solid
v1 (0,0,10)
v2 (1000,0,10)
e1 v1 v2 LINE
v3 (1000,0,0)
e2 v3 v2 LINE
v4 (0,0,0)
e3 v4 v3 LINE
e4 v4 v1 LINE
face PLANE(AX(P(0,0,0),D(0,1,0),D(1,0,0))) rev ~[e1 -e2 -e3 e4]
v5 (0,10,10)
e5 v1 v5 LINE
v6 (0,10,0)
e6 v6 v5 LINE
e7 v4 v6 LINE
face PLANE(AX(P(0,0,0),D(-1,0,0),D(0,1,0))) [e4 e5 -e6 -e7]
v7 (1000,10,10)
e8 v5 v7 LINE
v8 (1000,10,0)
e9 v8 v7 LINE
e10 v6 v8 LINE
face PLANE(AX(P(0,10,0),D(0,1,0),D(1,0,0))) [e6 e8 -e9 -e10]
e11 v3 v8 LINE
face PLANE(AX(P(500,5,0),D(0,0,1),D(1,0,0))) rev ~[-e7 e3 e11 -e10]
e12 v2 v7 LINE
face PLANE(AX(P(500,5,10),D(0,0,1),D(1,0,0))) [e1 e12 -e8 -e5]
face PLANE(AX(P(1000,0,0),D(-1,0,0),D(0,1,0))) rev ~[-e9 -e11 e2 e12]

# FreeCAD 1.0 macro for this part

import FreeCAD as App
import Part
import Sketcher

V = App.Vector


def add_polygon(sketch, points):
    """Adds a closed chain of lines whose ends are joined by coincident constraints."""
    first, n = sketch.GeometryCount, len(points)
    for a, b in zip(points, points[1:] + points[:1]):
        sketch.addGeometry(Part.LineSegment(App.Vector(*a, 0), App.Vector(*b, 0)), False)
    for i in range(n):
        sketch.addConstraint(Sketcher.Constraint("Coincident", first + i, 2, first + (i + 1) % n, 1))

doc = App.newDocument("Part")
body = doc.addObject("PartDesign::Body", "Body")

# Sketch on XY plane
sketch1 = body.newObject("Sketcher::SketchObject", "Sketch")
sketch1.AttachmentSupport = (doc.getObject("XY_Plane"), [""])
sketch1.MapMode = "FlatFace"
add_polygon(sketch1, [(0, 10), (0, 0), (1000, 0), (1000, 10)])  # lines 0-3
sketch1.addConstraint([
    Sketcher.Constraint("Vertical", 0),
    Sketcher.Constraint("Horizontal", 1),
    Sketcher.Constraint("Vertical", 2),
    Sketcher.Constraint("Horizontal", 3),
    Sketcher.Constraint("Coincident", 0, 2, -1, 1),
    Sketcher.Constraint("DistanceX", 1, 1, 1, 2, 1000.0),
    Sketcher.Constraint("DistanceY", 0, 2, 0, 1, 10.0),
])
pad1 = body.newObject("PartDesign::Pad", "Pad")
pad1.Profile = sketch1
pad1.Length = 10

doc.recompute()
